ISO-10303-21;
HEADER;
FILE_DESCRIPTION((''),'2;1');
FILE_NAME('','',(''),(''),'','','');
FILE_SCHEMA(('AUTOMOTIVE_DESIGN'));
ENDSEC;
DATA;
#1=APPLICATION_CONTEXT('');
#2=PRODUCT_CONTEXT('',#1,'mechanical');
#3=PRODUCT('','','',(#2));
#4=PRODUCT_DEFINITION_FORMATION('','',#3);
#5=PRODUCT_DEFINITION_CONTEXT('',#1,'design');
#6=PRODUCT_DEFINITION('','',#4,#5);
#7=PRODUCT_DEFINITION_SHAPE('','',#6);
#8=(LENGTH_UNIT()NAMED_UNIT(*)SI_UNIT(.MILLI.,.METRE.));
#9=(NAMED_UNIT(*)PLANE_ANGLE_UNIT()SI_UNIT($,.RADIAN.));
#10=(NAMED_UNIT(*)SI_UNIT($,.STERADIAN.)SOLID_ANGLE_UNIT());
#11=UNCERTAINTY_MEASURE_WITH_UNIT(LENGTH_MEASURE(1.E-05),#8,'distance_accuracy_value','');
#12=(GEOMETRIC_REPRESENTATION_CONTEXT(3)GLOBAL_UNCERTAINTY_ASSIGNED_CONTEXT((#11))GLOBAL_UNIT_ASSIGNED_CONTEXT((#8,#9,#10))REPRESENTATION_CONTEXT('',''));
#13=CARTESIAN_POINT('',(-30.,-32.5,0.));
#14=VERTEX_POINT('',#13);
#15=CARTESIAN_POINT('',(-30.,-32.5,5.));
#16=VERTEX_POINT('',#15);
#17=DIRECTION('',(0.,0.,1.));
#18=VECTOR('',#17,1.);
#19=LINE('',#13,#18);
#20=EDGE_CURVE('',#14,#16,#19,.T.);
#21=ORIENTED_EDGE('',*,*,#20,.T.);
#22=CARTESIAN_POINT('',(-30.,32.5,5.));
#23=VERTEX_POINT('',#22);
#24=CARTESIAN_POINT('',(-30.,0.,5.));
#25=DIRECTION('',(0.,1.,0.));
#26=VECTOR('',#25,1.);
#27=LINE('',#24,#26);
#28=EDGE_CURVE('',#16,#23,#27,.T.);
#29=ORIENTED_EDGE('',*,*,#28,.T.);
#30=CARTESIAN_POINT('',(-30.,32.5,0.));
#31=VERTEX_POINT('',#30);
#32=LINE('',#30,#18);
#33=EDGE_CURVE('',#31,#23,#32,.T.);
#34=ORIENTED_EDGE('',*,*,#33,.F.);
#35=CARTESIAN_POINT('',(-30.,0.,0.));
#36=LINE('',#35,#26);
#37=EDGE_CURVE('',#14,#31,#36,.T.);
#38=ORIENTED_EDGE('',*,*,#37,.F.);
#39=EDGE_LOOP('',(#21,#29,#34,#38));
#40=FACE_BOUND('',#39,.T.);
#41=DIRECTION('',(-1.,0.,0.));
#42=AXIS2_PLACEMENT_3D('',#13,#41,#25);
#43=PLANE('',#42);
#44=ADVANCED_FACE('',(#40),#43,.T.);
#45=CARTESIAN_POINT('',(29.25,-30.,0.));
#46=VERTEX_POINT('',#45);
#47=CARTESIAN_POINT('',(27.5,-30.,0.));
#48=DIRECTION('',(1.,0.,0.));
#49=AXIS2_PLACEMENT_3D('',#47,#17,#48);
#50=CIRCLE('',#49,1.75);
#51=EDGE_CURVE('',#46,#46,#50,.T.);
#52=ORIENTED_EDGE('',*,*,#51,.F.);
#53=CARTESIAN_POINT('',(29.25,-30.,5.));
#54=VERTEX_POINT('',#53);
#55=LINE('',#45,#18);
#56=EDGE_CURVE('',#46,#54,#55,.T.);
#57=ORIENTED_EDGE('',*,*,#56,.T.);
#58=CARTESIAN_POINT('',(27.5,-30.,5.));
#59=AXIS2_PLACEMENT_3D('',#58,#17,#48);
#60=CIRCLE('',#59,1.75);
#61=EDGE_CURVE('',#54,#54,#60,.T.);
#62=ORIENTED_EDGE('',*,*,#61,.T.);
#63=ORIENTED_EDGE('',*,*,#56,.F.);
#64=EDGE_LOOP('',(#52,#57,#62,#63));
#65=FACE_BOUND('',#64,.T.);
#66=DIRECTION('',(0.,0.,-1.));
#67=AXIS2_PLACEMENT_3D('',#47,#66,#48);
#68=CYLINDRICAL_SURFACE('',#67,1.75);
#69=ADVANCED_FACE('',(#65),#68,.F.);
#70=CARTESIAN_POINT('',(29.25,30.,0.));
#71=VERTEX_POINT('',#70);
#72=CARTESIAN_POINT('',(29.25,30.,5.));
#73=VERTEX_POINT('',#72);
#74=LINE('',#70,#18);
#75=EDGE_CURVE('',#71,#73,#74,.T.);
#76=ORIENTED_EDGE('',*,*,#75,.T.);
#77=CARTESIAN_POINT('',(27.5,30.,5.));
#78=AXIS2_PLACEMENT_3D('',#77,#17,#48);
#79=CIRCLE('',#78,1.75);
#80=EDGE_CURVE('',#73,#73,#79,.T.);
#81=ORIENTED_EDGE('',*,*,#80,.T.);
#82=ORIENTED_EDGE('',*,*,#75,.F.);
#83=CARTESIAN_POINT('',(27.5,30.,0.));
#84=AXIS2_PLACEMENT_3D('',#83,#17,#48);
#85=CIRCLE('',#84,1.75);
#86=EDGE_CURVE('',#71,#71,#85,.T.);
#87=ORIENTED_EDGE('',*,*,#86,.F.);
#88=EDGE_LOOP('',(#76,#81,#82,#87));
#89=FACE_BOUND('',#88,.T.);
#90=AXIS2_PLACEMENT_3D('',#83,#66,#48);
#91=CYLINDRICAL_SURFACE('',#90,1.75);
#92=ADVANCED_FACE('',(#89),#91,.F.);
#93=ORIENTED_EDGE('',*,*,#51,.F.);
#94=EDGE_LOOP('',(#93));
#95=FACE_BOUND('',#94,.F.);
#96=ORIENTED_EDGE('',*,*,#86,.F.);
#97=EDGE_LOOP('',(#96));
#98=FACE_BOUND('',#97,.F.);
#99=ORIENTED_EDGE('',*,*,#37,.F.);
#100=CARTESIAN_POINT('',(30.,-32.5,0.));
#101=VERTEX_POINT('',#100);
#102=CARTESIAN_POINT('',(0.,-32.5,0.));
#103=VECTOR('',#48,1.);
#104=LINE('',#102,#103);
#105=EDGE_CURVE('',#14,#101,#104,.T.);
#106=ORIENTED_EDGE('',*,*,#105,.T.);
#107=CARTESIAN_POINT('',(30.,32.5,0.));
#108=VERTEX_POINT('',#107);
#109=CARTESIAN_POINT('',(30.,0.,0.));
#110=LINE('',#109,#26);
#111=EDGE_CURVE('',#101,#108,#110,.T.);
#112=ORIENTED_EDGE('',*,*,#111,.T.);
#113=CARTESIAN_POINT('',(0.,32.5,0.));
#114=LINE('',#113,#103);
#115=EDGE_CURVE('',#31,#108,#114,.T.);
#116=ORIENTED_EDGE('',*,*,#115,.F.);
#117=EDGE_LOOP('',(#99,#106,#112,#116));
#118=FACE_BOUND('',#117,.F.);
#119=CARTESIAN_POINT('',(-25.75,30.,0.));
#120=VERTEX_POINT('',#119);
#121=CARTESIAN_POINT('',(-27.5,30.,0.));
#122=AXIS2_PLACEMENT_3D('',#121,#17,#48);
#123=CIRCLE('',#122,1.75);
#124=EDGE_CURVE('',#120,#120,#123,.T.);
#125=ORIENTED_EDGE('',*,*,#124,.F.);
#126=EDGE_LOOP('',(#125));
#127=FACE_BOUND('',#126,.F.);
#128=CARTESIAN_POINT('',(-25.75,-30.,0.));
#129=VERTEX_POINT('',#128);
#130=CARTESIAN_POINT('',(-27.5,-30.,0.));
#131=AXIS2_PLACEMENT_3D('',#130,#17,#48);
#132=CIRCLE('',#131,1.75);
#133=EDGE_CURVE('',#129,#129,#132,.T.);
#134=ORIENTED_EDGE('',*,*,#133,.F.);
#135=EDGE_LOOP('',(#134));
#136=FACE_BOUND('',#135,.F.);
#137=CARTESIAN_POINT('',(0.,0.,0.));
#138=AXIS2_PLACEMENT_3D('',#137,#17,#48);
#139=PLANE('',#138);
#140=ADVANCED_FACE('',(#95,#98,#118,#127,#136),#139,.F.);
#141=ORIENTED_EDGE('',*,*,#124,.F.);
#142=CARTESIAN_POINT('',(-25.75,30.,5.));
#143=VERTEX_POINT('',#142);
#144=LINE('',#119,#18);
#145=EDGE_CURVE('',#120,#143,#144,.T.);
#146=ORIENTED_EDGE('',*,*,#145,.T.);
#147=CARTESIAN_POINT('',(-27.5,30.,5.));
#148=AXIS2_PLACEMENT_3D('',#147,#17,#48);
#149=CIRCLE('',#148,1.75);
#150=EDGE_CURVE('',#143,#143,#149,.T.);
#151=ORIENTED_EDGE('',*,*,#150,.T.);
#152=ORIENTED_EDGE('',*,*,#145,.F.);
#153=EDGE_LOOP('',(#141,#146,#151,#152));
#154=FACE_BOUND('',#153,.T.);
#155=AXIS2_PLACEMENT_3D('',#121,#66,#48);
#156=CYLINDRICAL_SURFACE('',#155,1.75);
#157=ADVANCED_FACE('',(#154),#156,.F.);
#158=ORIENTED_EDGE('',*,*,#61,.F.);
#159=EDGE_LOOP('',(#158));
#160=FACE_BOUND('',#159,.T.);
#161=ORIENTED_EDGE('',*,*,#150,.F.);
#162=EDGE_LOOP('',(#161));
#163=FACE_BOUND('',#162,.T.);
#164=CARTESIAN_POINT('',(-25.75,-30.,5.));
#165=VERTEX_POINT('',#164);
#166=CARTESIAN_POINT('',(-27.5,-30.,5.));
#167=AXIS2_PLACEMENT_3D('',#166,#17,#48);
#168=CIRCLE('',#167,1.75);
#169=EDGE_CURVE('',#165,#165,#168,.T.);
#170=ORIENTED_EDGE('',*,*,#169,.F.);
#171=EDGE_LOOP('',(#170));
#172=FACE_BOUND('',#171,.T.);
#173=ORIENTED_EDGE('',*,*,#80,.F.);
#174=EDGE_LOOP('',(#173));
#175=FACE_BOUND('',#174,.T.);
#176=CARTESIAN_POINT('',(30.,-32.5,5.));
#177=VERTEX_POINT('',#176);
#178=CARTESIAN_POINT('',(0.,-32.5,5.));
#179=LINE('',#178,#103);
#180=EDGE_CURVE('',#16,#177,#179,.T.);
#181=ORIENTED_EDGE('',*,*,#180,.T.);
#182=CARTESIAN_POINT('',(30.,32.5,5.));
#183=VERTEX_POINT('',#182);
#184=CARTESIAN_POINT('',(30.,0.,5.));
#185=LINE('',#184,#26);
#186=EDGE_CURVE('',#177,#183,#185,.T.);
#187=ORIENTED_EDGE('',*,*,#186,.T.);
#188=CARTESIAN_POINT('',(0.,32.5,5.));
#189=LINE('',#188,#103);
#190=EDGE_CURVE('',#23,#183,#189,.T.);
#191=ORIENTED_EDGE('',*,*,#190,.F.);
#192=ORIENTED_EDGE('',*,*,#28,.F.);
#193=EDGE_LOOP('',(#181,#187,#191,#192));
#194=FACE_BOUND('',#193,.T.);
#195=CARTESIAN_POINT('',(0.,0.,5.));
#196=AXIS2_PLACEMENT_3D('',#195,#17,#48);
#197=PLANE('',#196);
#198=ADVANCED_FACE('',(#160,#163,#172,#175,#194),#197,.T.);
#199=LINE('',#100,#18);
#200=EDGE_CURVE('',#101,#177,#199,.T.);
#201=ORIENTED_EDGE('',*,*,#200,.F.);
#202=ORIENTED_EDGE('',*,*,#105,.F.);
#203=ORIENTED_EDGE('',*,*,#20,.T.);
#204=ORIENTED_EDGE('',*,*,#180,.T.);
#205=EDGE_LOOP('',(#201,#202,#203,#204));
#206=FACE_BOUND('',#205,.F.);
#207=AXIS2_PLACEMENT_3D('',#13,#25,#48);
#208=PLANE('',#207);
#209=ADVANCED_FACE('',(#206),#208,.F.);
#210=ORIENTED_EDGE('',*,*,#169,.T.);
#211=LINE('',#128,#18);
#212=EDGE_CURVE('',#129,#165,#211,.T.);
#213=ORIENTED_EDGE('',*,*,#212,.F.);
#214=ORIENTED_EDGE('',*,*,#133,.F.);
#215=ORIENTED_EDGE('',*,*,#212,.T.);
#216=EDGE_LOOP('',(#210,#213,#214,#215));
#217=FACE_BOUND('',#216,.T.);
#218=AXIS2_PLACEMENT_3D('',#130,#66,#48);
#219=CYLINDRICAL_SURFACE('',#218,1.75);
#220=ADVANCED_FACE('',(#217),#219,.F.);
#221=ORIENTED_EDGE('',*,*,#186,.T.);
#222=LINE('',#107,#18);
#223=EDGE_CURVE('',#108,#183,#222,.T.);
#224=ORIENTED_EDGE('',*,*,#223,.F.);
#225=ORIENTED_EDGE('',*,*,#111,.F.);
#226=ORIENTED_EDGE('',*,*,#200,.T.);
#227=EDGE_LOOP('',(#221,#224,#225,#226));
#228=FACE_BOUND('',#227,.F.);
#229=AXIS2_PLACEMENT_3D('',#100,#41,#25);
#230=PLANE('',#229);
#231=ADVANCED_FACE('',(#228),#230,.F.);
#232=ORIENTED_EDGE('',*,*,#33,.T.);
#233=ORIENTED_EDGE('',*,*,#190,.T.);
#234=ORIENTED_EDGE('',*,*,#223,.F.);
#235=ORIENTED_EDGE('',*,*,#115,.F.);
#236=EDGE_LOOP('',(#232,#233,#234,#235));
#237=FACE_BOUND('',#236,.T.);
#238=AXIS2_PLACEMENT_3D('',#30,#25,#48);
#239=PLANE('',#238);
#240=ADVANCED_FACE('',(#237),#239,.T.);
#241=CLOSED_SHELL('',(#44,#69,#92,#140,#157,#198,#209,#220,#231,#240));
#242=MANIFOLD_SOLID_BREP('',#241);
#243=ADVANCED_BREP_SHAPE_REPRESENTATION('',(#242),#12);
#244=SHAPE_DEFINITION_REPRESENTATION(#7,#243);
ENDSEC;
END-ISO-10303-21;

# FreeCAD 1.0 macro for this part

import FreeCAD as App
import Part
import Sketcher
from FreeCAD import Vector
Q = App.Units.Quantity

doc = App.newDocument("Part")
body = doc.addObject("PartDesign::Body", "Body")

sketch1 = doc.addObject("Sketcher::SketchObject", "Sketch")
body.addObject(sketch1)
sketch1.AttachmentSupport = (doc.XY_Plane, [""])
sketch1.MapMode = "FlatFace"
sketch1.addGeometry([
    Part.LineSegment(Vector(-30, 32.5, 0), Vector(-30, -32.5, 0)),
    Part.LineSegment(Vector(-30, -32.5, 0), Vector(30, -32.5, 0)),
    Part.LineSegment(Vector(30, -32.5, 0), Vector(30, 32.5, 0)),
    Part.LineSegment(Vector(30, 32.5, 0), Vector(-30, 32.5, 0)),
    Part.Circle(Vector(-27.5, -30, 0), Vector(0, 0, 1), 1.8),
    Part.Circle(Vector(27.5, -30, 0), Vector(0, 0, 1), 1.8),
    Part.Circle(Vector(-27.5, 30, 0), Vector(0, 0, 1), 1.8),
    Part.Circle(Vector(27.5, 30, 0), Vector(0, 0, 1), 1.8),
], False)
sketch1.addConstraint([
    Sketcher.Constraint("Coincident", 0, 2, 1, 1),
    Sketcher.Constraint("Coincident", 1, 2, 2, 1),
    Sketcher.Constraint("Coincident", 2, 2, 3, 1),
    Sketcher.Constraint("Coincident", 3, 2, 0, 1),
    Sketcher.Constraint("Vertical", 0),
    Sketcher.Constraint("Horizontal", 1),
    Sketcher.Constraint("Vertical", 2),
    Sketcher.Constraint("Horizontal", 3),
    Sketcher.Constraint("Equal", 4, 5),
    Sketcher.Constraint("Equal", 5, 6),
    Sketcher.Constraint("Equal", 6, 7),
    Sketcher.Constraint("Symmetric", 5, 3, 6, 3, -1, 1),
    Sketcher.Constraint("Symmetric", 4, 3, 7, 3, -1, 1),
    Sketcher.Constraint("Symmetric", 0, 2, 2, 2, -1, 1),
    Sketcher.Constraint("Symmetric", 4, 3, 5, 3, -2),
    Sketcher.Constraint("Diameter", 4, Q("3.5 mm")),
    Sketcher.Constraint("DistanceX", 1, 1, 1, 2, Q("60 mm")),
    Sketcher.Constraint("DistanceY", 0, 2, 0, 1, Q("65 mm")),
    Sketcher.Constraint("DistanceY", 4, 3, -1, 1, Q("30 mm")),
    Sketcher.Constraint("DistanceX", 4, 3, 5, 3, Q("55 mm")),
])
pad1 = doc.addObject("PartDesign::Pad", "Pad")
body.addObject(pad1)
pad1.Profile = sketch1
pad1.Length = 5

doc.recompute()
